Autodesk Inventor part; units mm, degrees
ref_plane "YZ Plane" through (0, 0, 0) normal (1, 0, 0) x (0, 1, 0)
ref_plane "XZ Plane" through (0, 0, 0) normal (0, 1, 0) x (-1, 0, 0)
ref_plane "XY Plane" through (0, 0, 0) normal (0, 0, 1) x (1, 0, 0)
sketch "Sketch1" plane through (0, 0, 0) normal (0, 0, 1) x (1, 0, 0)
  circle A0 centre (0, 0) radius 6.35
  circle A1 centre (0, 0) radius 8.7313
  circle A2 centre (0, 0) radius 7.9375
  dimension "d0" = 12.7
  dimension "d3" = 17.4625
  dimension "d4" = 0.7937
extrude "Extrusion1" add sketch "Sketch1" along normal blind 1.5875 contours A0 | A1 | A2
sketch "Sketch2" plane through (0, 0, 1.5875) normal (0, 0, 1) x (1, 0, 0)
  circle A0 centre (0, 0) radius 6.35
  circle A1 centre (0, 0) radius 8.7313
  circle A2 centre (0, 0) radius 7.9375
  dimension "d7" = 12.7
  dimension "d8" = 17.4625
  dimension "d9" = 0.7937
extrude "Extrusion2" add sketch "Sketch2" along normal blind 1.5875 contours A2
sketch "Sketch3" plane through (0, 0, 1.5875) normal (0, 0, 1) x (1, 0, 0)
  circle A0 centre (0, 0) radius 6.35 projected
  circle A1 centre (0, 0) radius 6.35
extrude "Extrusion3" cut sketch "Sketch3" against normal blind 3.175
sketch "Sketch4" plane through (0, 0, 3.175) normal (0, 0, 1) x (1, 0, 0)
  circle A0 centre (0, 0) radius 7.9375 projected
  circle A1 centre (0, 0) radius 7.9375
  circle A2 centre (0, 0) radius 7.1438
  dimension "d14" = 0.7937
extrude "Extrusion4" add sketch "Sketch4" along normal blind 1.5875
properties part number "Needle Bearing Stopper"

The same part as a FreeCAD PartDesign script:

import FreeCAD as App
import Part
import Sketcher
from FreeCAD import Vector
Q = App.Units.Quantity

doc = App.newDocument("Part")
body = doc.addObject("PartDesign::Body", "Body")

sketch1 = doc.addObject("Sketcher::SketchObject", "Sketch")
body.addObject(sketch1)
sketch1.AttachmentSupport = (doc.XY_Plane, [""])
sketch1.MapMode = "FlatFace"
sketch1.addGeometry(Part.Circle(Vector(0, 0, 0), Vector(0, 0, 1), 9), False)
sketch1.addConstraint(Sketcher.Constraint("Coincident", 0, 3, -1, 1))
sketch1.addConstraint(Sketcher.Constraint("Diameter", 0, Q("0.6875 in")))
pad1 = doc.addObject("PartDesign::Pad", "Pad")
body.addObject(pad1)
pad1.Profile = sketch1
pad1.Length = Q("0.0625 in")

sketch2 = doc.addObject("Sketcher::SketchObject", "Sketch001")
body.addObject(sketch2)
sketch2.AttachmentSupport = (doc.XY_Plane, [""])
sketch2.MapMode = "FlatFace"
sketch2.AttachmentOffset = App.Placement(Vector(0, 0, 0.0625 * 25.4), App.Rotation())
sketch2.addGeometry(Part.Circle(Vector(0, 0, 0), Vector(0, 0, 1), 8), False)
sketch2.addGeometry(Part.Circle(Vector(0, 0, 0), Vector(0, 0, 1), 6), False)
sketch2.addConstraint(Sketcher.Constraint("Coincident", 0, 3, -1, 1))
sketch2.addConstraint(Sketcher.Constraint("Coincident", 1, 3, -1, 1))
sketch2.addConstraint(Sketcher.Constraint("Diameter", 1, Q("0.5 in")))
sketch2.addConstraint(Sketcher.Constraint("Diameter", 0, Q("0.625 in")))
pad2 = doc.addObject("PartDesign::Pad", "Pad001")
body.addObject(pad2)
pad2.Profile = sketch2
pad2.Length = Q("0.0625 in")

sketch3 = doc.addObject("Sketcher::SketchObject", "Sketch002")
body.addObject(sketch3)
sketch3.AttachmentSupport = (doc.XY_Plane, [""])
sketch3.MapMode = "FlatFace"
sketch3.AttachmentOffset = App.Placement(Vector(0, 0, 0.0625 * 25.4), App.Rotation())
sketch3.addGeometry(Part.Circle(Vector(0, 0, 0), Vector(0, 0, 1), 6), False)
sketch3.addConstraint(Sketcher.Constraint("Coincident", 0, 3, -1, 1))
sketch3.addConstraint(Sketcher.Constraint("Diameter", 0, Q("0.5 in")))
pocket1 = doc.addObject("PartDesign::Pocket", "Pocket")
body.addObject(pocket1)
pocket1.Profile = sketch3
pocket1.Length = Q("0.125 in")

sketch4 = doc.addObject("Sketcher::SketchObject", "Sketch003")
body.addObject(sketch4)
sketch4.AttachmentSupport = (doc.XY_Plane, [""])
sketch4.MapMode = "FlatFace"
sketch4.AttachmentOffset = App.Placement(Vector(0, 0, 0.125 * 25.4), App.Rotation())
sketch4.addGeometry(Part.Circle(Vector(0, 0, 0), Vector(0, 0, 1), 8), False)
sketch4.addGeometry(Part.Circle(Vector(0, 0, 0), Vector(0, 0, 1), 7), False)
sketch4.addConstraint(Sketcher.Constraint("Coincident", 0, 3, -1, 1))
sketch4.addConstraint(Sketcher.Constraint("Coincident", 1, 3, -1, 1))
sketch4.addConstraint(Sketcher.Constraint("Diameter", 0, Q("0.625 in")))
sketch4.addConstraint(Sketcher.Constraint("Diameter", 1, Q("0.5625 in")))
pad3 = doc.addObject("PartDesign::Pad", "Pad002")
body.addObject(pad3)
pad3.Profile = sketch4
pad3.Length = Q("0.0625 in")

doc.recompute()
